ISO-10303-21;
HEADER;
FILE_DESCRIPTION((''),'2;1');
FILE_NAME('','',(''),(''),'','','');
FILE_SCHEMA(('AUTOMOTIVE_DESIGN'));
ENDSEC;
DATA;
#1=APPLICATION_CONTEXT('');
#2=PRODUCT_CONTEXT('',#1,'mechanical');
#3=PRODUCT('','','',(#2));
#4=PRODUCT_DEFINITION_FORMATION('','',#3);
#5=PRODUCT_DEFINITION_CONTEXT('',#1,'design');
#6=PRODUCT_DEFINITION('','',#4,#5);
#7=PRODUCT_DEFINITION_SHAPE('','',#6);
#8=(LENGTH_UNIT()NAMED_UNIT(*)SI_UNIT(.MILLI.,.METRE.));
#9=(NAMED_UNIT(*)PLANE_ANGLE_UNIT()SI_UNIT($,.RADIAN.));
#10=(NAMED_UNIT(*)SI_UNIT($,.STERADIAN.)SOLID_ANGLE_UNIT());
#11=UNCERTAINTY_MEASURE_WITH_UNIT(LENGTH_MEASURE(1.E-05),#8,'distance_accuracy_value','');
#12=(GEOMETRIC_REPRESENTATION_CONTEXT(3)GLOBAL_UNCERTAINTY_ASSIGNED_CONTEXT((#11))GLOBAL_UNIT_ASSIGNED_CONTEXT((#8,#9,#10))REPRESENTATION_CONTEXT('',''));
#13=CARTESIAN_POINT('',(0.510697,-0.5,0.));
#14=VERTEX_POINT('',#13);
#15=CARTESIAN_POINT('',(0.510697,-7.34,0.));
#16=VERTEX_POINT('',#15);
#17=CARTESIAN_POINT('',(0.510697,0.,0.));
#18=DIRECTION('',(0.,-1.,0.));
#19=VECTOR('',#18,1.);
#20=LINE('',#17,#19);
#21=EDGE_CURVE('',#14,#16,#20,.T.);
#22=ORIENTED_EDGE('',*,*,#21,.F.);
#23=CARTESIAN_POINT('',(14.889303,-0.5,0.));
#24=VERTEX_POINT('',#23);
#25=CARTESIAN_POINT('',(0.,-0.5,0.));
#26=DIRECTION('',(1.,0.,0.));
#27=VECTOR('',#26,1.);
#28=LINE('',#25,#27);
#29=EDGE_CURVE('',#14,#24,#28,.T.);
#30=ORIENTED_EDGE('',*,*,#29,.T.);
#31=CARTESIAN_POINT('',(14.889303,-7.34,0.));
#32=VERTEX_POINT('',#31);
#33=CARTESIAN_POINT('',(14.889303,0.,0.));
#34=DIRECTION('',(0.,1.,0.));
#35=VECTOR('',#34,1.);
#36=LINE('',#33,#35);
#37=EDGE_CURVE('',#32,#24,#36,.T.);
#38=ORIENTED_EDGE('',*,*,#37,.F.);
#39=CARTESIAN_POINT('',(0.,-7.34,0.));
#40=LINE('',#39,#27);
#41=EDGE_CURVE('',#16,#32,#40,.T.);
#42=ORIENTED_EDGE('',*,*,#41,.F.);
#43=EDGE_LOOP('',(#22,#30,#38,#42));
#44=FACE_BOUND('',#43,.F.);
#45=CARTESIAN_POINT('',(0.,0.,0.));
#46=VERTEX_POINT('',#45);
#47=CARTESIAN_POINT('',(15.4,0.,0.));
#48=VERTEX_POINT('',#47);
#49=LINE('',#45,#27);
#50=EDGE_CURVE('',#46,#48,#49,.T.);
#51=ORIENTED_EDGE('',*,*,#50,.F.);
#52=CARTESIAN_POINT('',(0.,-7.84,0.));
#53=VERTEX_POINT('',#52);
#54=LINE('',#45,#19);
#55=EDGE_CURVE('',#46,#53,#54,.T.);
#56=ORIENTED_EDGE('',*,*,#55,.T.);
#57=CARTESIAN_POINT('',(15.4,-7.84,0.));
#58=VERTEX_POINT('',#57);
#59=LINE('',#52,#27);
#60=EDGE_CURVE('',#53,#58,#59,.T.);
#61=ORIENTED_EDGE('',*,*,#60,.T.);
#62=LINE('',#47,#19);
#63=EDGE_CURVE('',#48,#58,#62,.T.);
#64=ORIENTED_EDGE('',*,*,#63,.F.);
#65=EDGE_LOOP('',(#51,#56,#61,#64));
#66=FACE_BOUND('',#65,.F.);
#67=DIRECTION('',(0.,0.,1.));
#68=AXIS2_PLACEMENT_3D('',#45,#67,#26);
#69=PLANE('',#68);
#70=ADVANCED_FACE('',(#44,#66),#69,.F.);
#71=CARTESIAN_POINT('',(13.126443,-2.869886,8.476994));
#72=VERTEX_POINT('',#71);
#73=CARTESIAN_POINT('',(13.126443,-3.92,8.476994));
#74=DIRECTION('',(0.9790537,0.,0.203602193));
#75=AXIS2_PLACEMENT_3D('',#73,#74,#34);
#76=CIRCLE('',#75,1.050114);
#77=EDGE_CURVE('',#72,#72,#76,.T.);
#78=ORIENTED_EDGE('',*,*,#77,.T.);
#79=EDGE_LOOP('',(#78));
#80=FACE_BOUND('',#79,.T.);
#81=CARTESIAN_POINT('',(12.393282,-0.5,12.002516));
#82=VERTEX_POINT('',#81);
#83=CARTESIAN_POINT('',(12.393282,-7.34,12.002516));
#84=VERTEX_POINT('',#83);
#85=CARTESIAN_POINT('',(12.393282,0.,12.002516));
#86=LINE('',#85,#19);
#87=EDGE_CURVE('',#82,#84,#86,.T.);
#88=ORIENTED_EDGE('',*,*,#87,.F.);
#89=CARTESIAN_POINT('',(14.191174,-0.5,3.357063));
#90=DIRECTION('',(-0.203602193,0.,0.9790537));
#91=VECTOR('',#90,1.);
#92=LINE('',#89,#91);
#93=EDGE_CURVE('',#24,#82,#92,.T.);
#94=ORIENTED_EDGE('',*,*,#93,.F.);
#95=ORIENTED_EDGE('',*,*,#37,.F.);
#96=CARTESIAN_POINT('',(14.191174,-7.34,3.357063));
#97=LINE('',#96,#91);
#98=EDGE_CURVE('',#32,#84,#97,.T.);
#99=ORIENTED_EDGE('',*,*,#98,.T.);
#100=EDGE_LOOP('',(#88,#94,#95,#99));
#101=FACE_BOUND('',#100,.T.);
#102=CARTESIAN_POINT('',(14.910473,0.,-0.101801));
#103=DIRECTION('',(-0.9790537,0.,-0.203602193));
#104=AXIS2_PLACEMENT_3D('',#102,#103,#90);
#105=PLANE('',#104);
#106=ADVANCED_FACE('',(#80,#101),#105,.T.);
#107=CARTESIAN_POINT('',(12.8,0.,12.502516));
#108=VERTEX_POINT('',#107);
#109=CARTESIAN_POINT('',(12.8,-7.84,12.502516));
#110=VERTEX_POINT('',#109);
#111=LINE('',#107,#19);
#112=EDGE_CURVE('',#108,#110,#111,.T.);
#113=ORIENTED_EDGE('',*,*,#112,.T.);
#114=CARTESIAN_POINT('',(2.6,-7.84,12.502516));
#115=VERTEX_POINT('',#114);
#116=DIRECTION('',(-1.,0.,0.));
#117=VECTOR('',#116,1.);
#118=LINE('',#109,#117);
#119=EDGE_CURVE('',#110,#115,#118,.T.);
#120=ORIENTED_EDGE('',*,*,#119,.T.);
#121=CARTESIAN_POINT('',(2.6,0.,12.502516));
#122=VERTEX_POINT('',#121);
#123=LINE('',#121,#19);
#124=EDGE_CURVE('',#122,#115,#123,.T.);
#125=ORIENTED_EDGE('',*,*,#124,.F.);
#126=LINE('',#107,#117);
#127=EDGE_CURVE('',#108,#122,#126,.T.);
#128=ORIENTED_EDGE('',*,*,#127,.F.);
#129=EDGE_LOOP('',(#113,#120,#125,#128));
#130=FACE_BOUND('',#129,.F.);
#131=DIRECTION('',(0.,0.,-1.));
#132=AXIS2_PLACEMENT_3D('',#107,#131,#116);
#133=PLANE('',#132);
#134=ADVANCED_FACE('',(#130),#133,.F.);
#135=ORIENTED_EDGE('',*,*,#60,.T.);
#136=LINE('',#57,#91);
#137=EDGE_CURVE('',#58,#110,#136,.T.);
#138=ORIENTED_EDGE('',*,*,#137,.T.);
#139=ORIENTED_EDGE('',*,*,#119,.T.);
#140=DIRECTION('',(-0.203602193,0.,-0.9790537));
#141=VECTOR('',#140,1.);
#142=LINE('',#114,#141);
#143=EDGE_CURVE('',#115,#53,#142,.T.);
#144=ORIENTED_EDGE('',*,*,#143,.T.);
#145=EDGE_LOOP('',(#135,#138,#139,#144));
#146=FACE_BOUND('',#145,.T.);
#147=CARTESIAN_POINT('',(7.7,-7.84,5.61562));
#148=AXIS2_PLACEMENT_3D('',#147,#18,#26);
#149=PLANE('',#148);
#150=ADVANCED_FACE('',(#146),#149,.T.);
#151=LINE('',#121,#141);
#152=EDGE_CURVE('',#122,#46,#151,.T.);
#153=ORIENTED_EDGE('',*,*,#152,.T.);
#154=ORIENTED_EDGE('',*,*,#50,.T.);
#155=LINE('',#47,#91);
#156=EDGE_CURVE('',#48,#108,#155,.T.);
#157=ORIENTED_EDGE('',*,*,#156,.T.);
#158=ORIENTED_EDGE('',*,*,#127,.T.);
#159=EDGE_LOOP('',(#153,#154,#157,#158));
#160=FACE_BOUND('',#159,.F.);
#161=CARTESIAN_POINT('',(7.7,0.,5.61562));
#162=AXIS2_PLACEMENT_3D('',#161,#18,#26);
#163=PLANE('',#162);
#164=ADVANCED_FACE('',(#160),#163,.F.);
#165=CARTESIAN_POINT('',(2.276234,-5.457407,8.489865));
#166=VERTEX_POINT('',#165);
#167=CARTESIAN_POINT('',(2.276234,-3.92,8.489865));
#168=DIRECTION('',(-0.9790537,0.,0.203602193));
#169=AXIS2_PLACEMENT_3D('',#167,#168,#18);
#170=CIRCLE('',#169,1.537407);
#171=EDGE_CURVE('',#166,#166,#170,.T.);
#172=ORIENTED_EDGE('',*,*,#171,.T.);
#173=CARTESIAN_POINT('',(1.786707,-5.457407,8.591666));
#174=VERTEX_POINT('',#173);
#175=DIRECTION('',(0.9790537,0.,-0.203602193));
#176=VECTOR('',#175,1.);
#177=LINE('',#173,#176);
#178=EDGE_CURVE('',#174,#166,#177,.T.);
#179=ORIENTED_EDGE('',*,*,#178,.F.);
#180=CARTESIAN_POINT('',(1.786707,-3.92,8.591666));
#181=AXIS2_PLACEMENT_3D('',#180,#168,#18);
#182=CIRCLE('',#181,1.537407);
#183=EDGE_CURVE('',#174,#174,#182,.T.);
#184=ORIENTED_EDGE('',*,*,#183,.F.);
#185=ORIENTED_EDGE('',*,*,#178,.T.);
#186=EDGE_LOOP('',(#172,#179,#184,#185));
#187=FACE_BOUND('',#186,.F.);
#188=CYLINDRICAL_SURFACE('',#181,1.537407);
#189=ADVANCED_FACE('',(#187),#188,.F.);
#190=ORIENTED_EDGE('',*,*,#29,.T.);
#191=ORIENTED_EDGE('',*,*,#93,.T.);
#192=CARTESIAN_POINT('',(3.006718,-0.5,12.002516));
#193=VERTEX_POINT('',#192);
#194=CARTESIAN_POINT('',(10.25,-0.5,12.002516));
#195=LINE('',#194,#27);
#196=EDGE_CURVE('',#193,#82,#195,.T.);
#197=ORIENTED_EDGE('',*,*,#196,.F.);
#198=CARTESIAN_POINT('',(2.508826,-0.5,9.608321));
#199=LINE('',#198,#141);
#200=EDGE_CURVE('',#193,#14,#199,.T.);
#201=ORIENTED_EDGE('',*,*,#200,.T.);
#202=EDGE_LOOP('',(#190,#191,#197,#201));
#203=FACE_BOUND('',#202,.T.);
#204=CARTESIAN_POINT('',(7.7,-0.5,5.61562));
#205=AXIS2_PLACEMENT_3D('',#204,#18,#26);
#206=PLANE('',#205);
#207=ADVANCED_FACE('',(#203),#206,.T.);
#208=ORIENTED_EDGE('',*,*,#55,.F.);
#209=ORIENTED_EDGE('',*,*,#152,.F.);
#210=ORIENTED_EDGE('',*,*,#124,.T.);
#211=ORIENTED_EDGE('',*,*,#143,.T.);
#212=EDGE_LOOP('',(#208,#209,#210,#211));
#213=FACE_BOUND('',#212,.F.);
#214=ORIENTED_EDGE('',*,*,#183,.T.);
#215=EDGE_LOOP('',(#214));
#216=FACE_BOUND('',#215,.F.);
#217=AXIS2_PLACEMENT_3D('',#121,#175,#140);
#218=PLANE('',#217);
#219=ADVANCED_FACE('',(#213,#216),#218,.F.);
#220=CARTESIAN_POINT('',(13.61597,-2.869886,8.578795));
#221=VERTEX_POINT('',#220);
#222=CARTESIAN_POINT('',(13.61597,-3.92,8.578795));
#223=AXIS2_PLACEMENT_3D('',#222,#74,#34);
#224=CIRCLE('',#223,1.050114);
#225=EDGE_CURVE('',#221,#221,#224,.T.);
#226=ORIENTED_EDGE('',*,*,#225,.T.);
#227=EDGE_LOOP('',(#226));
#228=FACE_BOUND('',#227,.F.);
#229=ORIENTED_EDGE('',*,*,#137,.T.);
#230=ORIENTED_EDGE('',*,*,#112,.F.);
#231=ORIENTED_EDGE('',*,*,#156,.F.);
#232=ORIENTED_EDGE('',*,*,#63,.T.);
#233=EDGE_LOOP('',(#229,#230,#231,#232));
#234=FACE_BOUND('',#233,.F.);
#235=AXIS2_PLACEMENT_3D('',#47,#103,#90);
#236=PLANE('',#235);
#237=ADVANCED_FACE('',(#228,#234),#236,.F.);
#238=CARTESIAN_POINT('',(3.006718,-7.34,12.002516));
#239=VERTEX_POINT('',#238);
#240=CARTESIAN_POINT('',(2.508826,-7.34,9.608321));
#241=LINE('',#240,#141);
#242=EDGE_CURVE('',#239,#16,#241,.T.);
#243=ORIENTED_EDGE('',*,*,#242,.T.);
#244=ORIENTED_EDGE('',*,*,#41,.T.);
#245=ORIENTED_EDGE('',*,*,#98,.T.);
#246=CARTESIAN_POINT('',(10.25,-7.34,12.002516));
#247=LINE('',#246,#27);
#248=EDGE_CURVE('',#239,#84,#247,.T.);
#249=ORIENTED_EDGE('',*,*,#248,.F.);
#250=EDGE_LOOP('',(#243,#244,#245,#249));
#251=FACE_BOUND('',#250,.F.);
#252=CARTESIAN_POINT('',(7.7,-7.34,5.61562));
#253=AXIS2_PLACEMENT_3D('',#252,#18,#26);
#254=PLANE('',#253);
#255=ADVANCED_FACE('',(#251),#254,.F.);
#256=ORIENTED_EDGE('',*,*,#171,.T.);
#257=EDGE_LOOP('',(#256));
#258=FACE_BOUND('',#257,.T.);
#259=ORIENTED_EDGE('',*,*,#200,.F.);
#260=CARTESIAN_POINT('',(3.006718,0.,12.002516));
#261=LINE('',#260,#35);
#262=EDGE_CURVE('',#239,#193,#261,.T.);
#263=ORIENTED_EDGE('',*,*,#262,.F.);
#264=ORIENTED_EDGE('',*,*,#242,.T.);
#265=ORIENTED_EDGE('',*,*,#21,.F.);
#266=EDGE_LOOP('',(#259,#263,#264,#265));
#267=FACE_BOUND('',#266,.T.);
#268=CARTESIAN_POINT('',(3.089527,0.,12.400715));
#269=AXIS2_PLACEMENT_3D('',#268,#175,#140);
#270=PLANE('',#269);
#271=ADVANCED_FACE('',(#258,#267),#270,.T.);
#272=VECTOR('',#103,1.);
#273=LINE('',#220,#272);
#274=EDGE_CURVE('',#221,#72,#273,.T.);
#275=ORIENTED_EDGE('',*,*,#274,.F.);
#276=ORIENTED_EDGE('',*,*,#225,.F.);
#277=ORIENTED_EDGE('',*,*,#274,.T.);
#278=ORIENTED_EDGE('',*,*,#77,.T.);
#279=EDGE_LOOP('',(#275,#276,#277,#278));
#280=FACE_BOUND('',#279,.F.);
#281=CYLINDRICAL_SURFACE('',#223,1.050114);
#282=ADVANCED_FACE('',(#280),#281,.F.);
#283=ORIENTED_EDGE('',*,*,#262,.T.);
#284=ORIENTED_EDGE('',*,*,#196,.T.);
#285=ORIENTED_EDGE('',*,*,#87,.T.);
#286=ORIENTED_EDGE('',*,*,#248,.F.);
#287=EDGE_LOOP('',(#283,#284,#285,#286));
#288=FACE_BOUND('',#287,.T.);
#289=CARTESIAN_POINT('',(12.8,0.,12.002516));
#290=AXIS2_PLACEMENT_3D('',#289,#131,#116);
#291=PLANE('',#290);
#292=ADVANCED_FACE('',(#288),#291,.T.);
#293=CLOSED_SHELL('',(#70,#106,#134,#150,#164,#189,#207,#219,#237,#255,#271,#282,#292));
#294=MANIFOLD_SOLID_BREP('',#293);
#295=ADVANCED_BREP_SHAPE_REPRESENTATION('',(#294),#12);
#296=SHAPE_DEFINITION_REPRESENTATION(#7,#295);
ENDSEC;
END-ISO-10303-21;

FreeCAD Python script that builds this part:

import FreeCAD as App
import Part
import Sketcher


def faces_at(feature, points):
    """Names of the faces that lie closest to the given points."""
    faces = feature.Shape.Faces
    near = lambda p: min(range(len(faces)), key=lambda i: faces[i].distToShape(Part.Vertex(*p))[0])
    return sorted({f"Face{near(p) + 1}" for p in points})


def add_polygon(sketch, points):
    """Adds a closed chain of lines whose ends are joined by coincident constraints."""
    first, n = sketch.GeometryCount, len(points)
    for a, b in zip(points, points[1:] + points[:1]):
        sketch.addGeometry(Part.LineSegment(App.Vector(*a, 0), App.Vector(*b, 0)), False)
    for i in range(n):
        sketch.addConstraint(Sketcher.Constraint("Coincident", first + i, 2, first + (i + 1) % n, 1))

doc = App.newDocument("Part")
body = doc.addObject("PartDesign::Body", "Body")

# Sketch on XZ plane
sketch1 = body.newObject("Sketcher::SketchObject", "Sketch")
sketch1.AttachmentSupport = (doc.getObject("XZ_Plane"), [""])
sketch1.MapMode = "FlatFace"
add_polygon(sketch1, [(3, 13), (0, 0), (15, 0), (13, 13)])  # lines 0-3
sketch1.addConstraint([
    Sketcher.Constraint("Horizontal", 1),
    Sketcher.Constraint("Horizontal", 3),
    Sketcher.Constraint("Coincident", 0, 2, -1, 1),
    Sketcher.Constraint("Equal", 0, 2),
    Sketcher.Constraint("DistanceX", 1, 1, 1, 2, 15.4),
    Sketcher.Constraint("DistanceX", 3, 2, 3, 1, 10.2),
    Sketcher.Constraint("Distance", 0, 12.77),
])
pad1 = body.newObject("PartDesign::Pad", "Pad")
pad1.Profile = sketch1
pad1.Length = 7.84
doc.recompute()

thickness = body.newObject("PartDesign::Thickness", "Thickness")
thickness.Base = (pad1, faces_at(pad1, [(7.7, -3.92, 0)]))
thickness.Value = 0.5
thickness.Reversed = True
thickness.Join = "Arc"

# Sketch on an angled plane
sketch2 = body.newObject("Sketcher::SketchObject", "Sketch001")
sketch2.Placement = App.Placement(App.Vector(14.761611, 0, 3.069797), App.Rotation(App.Vector(0, 1, 0), App.Vector(-0.203602193, 0, 0.9790537), App.Vector(0.9790537, 0, 0.203602193), "ZXY"))
sketch2.addGeometry(Part.Circle(App.Vector(-3.9, 5.6, 0), App.Vector(0, 0, 1), 1.1), False)
sketch2.addConstraint([
    Sketcher.Constraint("Diameter", 0, 2.100229),
    Sketcher.Constraint("DistanceX", 0, 3, -1, 1, 3.92),
    Sketcher.Constraint("DistanceY", -1, 1, 0, 3, 5.62686),
])
pocket1 = body.newObject("PartDesign::Pocket", "Pocket")
pocket1.Profile = sketch2
pocket1.Length = 0.5

# Sketch on an angled plane
sketch3 = body.newObject("Sketcher::SketchObject", "Sketch002")
sketch3.Placement = App.Placement(App.Vector(0, 0, 0), App.Rotation(App.Vector(0, -1, 0), App.Vector(0.203602193, 0, 0.9790537), App.Vector(-0.9790537, 0, 0.203602193), "ZXY"))
sketch3.addGeometry(Part.Circle(App.Vector(3.9, 8.8, 0), App.Vector(0, 0, 1), 1.5), False)
sketch3.addConstraint([
    Sketcher.Constraint("DistanceX", -1, 1, 0, 3, 3.92),
    Sketcher.Constraint("Diameter", 0, 3.074813),
    Sketcher.Constraint("DistanceY", -1, 1, 0, 3, 8.77548),
])
pocket2 = body.newObject("PartDesign::Pocket", "Pocket001")
pocket2.Profile = sketch3
pocket2.Length = 0.5

doc.recompute()
